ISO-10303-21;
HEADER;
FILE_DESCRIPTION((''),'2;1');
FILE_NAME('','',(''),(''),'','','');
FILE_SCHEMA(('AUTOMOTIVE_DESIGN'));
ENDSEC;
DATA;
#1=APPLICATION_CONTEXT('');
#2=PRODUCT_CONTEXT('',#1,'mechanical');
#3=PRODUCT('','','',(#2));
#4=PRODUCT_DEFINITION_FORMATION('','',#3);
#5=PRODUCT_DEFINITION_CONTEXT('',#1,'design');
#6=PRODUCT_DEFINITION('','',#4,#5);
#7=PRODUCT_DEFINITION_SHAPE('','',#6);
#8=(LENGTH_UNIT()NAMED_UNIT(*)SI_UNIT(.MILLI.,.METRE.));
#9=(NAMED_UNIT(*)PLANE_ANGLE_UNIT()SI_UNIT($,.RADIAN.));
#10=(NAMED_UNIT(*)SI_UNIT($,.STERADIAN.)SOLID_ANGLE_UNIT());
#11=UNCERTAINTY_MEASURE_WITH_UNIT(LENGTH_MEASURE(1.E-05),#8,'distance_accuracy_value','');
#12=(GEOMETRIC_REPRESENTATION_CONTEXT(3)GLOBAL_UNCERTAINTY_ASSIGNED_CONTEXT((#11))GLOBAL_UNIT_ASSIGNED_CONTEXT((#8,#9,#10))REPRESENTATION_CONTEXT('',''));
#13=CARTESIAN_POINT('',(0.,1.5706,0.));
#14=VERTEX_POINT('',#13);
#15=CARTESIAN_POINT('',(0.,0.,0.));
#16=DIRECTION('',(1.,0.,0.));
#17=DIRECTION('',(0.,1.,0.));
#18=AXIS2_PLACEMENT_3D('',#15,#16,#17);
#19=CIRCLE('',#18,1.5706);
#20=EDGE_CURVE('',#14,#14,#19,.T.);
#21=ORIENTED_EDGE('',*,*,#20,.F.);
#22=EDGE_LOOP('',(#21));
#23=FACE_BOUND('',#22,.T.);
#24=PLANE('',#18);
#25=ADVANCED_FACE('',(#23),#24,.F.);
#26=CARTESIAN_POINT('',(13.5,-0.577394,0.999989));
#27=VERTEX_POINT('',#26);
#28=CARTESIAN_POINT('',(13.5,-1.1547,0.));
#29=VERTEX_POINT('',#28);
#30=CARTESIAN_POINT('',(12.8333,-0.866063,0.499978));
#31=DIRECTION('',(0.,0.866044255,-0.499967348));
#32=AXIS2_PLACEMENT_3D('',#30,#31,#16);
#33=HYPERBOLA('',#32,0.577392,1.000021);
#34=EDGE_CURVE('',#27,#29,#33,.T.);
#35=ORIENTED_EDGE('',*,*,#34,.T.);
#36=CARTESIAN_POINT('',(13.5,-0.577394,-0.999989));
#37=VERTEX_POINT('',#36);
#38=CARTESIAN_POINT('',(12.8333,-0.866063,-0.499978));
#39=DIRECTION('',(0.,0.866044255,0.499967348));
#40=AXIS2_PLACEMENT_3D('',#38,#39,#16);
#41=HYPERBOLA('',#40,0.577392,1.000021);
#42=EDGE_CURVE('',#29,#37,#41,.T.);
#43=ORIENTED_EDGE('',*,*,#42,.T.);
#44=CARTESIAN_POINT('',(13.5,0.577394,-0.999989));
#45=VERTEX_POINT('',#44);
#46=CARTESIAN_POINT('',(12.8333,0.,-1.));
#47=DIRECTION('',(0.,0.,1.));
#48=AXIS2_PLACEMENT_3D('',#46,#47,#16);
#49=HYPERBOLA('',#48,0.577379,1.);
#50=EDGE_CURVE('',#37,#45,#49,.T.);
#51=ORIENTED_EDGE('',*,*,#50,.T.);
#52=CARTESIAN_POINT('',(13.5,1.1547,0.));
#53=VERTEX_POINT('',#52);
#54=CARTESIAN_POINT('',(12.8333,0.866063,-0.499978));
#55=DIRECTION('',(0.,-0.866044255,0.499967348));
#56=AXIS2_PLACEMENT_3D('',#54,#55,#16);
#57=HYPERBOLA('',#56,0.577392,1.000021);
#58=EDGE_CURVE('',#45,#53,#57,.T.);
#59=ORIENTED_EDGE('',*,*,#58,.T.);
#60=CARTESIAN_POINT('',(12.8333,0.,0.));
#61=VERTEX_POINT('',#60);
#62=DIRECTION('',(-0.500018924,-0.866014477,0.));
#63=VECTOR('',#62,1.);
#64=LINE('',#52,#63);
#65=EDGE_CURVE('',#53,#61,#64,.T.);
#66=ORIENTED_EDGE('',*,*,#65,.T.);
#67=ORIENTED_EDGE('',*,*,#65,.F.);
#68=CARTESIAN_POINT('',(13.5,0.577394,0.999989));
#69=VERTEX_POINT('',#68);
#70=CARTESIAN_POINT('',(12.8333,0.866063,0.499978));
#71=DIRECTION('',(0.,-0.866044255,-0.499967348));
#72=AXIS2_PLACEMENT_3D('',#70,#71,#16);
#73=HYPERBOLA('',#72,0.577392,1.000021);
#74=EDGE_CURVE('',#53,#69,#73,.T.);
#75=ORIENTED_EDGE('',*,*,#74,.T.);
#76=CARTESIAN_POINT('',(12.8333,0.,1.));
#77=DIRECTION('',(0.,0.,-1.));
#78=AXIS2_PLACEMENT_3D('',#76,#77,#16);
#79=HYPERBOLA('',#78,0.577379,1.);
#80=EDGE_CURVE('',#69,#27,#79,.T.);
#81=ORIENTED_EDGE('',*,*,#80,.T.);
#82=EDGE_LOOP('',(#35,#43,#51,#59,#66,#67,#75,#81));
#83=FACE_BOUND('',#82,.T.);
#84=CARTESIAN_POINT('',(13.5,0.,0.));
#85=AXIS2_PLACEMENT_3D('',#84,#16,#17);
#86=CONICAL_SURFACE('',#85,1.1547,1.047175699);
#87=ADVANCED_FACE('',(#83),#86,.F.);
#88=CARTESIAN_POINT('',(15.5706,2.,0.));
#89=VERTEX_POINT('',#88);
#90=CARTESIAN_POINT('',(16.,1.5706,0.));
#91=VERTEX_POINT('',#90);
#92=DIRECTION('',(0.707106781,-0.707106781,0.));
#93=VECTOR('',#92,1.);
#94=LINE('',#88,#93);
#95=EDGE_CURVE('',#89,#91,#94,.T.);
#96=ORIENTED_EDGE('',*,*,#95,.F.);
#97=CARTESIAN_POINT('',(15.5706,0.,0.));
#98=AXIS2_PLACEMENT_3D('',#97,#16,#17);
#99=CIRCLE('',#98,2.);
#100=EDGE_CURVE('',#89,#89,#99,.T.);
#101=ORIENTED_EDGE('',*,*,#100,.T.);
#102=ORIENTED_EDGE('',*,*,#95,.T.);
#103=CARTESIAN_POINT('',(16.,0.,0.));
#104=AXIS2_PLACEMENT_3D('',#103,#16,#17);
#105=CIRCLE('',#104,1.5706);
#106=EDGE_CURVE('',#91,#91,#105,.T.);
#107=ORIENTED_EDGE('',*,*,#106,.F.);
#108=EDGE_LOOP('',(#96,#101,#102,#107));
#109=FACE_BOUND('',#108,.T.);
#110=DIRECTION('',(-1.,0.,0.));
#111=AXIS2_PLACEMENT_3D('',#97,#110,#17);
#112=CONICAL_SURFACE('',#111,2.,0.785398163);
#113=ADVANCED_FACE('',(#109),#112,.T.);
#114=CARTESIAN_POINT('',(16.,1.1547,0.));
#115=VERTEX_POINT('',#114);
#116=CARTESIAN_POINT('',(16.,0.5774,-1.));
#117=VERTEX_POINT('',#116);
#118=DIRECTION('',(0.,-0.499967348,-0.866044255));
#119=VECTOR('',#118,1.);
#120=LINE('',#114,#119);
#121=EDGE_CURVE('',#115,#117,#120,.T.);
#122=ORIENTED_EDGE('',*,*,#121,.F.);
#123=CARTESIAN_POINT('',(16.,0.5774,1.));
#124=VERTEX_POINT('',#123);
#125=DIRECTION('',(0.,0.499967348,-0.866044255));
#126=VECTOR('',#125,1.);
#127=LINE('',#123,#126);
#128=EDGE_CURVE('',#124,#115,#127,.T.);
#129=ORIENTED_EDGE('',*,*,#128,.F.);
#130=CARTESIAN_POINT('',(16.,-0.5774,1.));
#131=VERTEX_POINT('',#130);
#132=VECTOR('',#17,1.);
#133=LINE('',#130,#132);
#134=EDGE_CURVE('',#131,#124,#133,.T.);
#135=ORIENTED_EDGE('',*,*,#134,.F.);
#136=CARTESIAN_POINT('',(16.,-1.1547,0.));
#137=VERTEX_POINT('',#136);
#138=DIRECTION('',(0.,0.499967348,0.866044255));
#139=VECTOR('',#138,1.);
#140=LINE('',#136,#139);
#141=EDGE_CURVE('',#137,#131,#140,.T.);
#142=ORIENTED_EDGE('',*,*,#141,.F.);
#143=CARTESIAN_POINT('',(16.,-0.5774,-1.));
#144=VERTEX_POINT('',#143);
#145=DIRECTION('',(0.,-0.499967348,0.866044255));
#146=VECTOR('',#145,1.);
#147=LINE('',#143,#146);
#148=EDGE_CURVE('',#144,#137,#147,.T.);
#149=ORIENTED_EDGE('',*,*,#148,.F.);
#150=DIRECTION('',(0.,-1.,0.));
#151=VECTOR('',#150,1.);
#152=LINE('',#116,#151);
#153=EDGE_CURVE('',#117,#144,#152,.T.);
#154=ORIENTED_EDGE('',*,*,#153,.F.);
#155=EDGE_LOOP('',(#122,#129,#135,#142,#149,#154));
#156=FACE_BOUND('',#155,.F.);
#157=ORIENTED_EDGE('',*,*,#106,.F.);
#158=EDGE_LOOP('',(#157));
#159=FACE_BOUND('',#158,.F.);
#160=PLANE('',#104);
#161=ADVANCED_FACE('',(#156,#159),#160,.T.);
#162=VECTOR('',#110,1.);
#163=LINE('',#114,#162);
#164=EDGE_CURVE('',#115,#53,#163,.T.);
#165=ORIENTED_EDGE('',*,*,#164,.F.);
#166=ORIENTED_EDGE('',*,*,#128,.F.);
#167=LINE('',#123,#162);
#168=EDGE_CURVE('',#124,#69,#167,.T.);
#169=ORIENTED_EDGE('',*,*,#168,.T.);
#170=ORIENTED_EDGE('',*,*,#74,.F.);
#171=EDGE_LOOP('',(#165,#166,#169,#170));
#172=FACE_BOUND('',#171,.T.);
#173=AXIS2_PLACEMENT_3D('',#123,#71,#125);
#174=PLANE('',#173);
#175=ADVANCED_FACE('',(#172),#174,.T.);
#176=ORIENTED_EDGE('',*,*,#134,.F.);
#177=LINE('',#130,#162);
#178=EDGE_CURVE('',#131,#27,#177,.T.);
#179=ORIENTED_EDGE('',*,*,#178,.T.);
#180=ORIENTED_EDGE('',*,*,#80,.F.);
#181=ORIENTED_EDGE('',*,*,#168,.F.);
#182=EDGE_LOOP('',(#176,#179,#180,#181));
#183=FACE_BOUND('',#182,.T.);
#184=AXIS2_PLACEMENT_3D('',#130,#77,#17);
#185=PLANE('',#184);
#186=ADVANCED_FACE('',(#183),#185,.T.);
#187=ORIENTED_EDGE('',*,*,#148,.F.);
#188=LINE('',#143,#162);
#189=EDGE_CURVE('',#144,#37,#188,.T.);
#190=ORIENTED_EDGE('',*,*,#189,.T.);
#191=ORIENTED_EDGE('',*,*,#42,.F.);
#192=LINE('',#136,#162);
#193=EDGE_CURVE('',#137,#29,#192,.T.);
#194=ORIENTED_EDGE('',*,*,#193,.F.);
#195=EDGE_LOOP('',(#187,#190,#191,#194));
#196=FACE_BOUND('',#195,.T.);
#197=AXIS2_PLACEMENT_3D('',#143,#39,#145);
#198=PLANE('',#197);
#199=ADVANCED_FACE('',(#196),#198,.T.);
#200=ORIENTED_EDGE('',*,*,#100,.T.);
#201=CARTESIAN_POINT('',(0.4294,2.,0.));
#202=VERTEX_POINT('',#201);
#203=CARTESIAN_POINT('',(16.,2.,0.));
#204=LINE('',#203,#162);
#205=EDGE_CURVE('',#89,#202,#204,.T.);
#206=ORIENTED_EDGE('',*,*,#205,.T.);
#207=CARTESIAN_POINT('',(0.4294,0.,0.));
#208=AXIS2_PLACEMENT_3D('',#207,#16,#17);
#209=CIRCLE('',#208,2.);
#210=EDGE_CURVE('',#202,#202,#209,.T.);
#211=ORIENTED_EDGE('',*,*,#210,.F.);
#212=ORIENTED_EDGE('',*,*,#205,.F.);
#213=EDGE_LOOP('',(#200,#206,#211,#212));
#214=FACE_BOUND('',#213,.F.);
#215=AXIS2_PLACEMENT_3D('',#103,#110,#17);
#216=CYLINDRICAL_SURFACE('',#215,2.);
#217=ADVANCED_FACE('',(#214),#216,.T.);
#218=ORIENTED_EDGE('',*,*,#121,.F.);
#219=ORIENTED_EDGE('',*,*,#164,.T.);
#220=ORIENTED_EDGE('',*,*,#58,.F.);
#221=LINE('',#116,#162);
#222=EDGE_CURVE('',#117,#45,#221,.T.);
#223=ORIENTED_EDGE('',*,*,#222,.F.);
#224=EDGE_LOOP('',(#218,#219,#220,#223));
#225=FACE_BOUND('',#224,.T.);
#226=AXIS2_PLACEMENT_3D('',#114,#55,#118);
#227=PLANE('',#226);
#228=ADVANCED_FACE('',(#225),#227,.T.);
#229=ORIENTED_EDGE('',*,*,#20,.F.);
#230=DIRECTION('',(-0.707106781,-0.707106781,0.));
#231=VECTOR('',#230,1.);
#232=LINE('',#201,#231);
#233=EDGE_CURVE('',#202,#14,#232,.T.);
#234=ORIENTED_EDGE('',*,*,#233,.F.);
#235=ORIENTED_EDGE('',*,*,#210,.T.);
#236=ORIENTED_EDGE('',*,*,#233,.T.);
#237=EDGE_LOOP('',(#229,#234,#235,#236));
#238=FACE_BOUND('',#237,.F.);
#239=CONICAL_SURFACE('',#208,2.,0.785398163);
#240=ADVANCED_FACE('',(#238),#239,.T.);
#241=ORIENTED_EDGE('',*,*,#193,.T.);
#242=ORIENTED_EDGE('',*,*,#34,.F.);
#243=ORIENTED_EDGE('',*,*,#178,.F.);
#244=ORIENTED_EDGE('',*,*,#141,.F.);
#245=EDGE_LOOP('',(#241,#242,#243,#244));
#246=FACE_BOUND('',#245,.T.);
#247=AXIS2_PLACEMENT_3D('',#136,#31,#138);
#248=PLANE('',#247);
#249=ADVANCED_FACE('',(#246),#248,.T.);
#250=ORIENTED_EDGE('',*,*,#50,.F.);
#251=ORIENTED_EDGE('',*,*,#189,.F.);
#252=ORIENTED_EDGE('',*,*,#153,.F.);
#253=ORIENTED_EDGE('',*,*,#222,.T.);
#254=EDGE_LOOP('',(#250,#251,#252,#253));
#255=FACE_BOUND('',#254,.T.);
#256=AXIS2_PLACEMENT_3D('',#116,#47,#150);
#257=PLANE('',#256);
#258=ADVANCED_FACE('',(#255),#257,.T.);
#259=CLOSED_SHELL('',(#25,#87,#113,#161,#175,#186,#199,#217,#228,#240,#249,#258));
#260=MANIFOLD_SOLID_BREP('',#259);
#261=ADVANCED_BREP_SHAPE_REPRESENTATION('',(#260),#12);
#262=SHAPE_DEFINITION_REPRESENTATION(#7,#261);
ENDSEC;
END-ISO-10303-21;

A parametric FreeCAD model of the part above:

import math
import FreeCAD as App
import Part
import Sketcher
from FreeCAD import Vector
Q = App.Units.Quantity


def edges_at(feature, points):
    """Names of the edges that pass closest to the given points."""
    edges = feature.Shape.Edges
    near = lambda p: min(range(len(edges)), key=lambda i: edges[i].distToShape(Part.Vertex(*p))[0])
    return sorted({f"Edge{near(p) + 1}" for p in points})

doc = App.newDocument("Part")
body = doc.addObject("PartDesign::Body", "Body")

# Sketch on XY plane
sketch1 = body.newObject("Sketcher::SketchObject", "Sketch")
sketch1.AttachmentSupport = (doc.getObject("XY_Plane"), [""])
sketch1.MapMode = "FlatFace"
sketch1.addGeometry(Part.LineSegment(Vector(0, 2, 0), Vector(0, 0, 0)), False)
sketch1.addGeometry(Part.LineSegment(Vector(0, 0, 0), Vector(12.8, 0, 0)), False)
sketch1.addGeometry(Part.LineSegment(Vector(12.8, 0, 0), Vector(13.5, 1.2, 0)), False)
sketch1.addGeometry(Part.LineSegment(Vector(13.5, 1.2, 0), Vector(16, 1.2, 0)), False)
sketch1.addGeometry(Part.LineSegment(Vector(16, 1.2, 0), Vector(16, 2, 0)), False)
sketch1.addGeometry(Part.LineSegment(Vector(16, 2, 0), Vector(0, 2, 0)), False)
sketch1.addConstraint(Sketcher.Constraint("Coincident", 0, 2, 1, 1))
sketch1.addConstraint(Sketcher.Constraint("Coincident", 1, 2, 2, 1))
sketch1.addConstraint(Sketcher.Constraint("Coincident", 2, 2, 3, 1))
sketch1.addConstraint(Sketcher.Constraint("Coincident", 3, 2, 4, 1))
sketch1.addConstraint(Sketcher.Constraint("Coincident", 4, 2, 5, 1))
sketch1.addConstraint(Sketcher.Constraint("Coincident", 5, 2, 0, 1))
sketch1.addConstraint(Sketcher.Constraint("Vertical", 0))
sketch1.addConstraint(Sketcher.Constraint("Horizontal", 1))
sketch1.addConstraint(Sketcher.Constraint("Horizontal", 3))
sketch1.addConstraint(Sketcher.Constraint("Vertical", 4))
sketch1.addConstraint(Sketcher.Constraint("Horizontal", 5))
sketch1.addConstraint(Sketcher.Constraint("Coincident", 0, 2, -1, 1))
sketch1.addConstraint(Sketcher.Constraint("DistanceX", 5, 2, 5, 1, Q("16 mm")))
sketch1.addConstraint(Sketcher.Constraint("DistanceX", 3, 1, 3, 2, Q("2.5 mm")))
sketch1.addConstraint(Sketcher.Constraint("DistanceY", 0, 2, 0, 1, Q("2 mm")))
sketch1.addConstraint(Sketcher.Constraint("DistanceX", 1, 1, 1, 2, Q("12.8333 mm")))
sketch1.addConstraint(Sketcher.Constraint("DistanceY", 4, 1, 4, 2, Q("0.8453 mm")))
revolution = body.newObject("PartDesign::Revolution", "Revolution")
revolution.Profile = sketch1
revolution.ReferenceAxis = (sketch1, ["H_Axis"])
revolution.Angle = 360

# Sketch on YZ plane
sketch2 = body.newObject("Sketcher::SketchObject", "Sketch001")
sketch2.AttachmentSupport = (doc.getObject("YZ_Plane"), [""])
sketch2.MapMode = "FlatFace"
sketch2.AttachmentOffset = App.Placement(Vector(0, 0, 16), App.Rotation())
sketch2.addGeometry(Part.LineSegment(Vector(0.6, 1, 0), Vector(1.2, 0, 0)), False)
sketch2.addGeometry(Part.ArcOfCircle(Part.Circle(Vector(0, 0, 0), Vector(0, 0, 1), 1.2), math.radians(0), math.radians(60)), False)
sketch2.addGeometry(Part.ArcOfCircle(Part.Circle(Vector(0, 0, 0), Vector(0, 0, 1), 1.2), math.radians(-60), math.radians(0)), False)
sketch2.addGeometry(Part.LineSegment(Vector(1.2, 0, 0), Vector(0.6, -1, 0)), False)
sketch2.addGeometry(Part.LineSegment(Vector(-0.6, 1, 0), Vector(0.6, 1, 0)), False)
sketch2.addGeometry(Part.ArcOfCircle(Part.Circle(Vector(0, 0, 0), Vector(0, 0, 1), 1.2), math.radians(60), math.radians(120)), False)
sketch2.addGeometry(Part.ArcOfCircle(Part.Circle(Vector(0, 0, 0), Vector(0, 0, 1), 1.2), math.radians(-120), math.radians(-60)), False)
sketch2.addGeometry(Part.LineSegment(Vector(-0.6, -1, 0), Vector(0.6, -1, 0)), False)
sketch2.addGeometry(Part.LineSegment(Vector(-1.2, 0, 0), Vector(-0.6, 1, 0)), False)
sketch2.addGeometry(Part.ArcOfCircle(Part.Circle(Vector(0, 0, 0), Vector(0, 0, 1), 1.2), math.radians(120), math.radians(180)), False)
sketch2.addGeometry(Part.ArcOfCircle(Part.Circle(Vector(0, 0, 0), Vector(0, 0, 1), 1.2), math.radians(180), math.radians(240)), False)
sketch2.addGeometry(Part.LineSegment(Vector(-1.2, 0, 0), Vector(-0.6, -1, 0)), False)
sketch2.addConstraint(Sketcher.Constraint("Coincident", 0, 1, 1, 2))
sketch2.addConstraint(Sketcher.Constraint("Coincident", 1, 1, 0, 2))
sketch2.addConstraint(Sketcher.Constraint("Coincident", 2, 1, 3, 2))
sketch2.addConstraint(Sketcher.Constraint("Coincident", 3, 1, 2, 2))
sketch2.addConstraint(Sketcher.Constraint("Coincident", 4, 1, 5, 2))
sketch2.addConstraint(Sketcher.Constraint("Coincident", 5, 1, 4, 2))
sketch2.addConstraint(Sketcher.Constraint("Coincident", 6, 1, 7, 1))
sketch2.addConstraint(Sketcher.Constraint("Coincident", 7, 2, 6, 2))
sketch2.addConstraint(Sketcher.Constraint("Coincident", 8, 1, 9, 2))
sketch2.addConstraint(Sketcher.Constraint("Coincident", 9, 1, 8, 2))
sketch2.addConstraint(Sketcher.Constraint("Coincident", 10, 1, 11, 1))
sketch2.addConstraint(Sketcher.Constraint("Coincident", 11, 2, 10, 2))
sketch2.addConstraint(Sketcher.Constraint("Horizontal", 4))
sketch2.addConstraint(Sketcher.Constraint("Horizontal", 7))
sketch2.addConstraint(Sketcher.Constraint("Coincident", 1, 3, -1, 1))
sketch2.addConstraint(Sketcher.Constraint("Coincident", 2, 3, -1, 1))
sketch2.addConstraint(Sketcher.Constraint("Coincident", 5, 3, -1, 1))
sketch2.addConstraint(Sketcher.Constraint("Coincident", 6, 3, -1, 1))
sketch2.addConstraint(Sketcher.Constraint("Coincident", 9, 3, -1, 1))
sketch2.addConstraint(Sketcher.Constraint("Coincident", 10, 3, -1, 1))
sketch2.addConstraint(Sketcher.Constraint("Coincident", 3, 1, 1, 1))
sketch2.addConstraint(Sketcher.Constraint("Coincident", 5, 1, 0, 1))
sketch2.addConstraint(Sketcher.Constraint("Coincident", 7, 2, 2, 1))
sketch2.addConstraint(Sketcher.Constraint("Coincident", 9, 1, 4, 1))
sketch2.addConstraint(Sketcher.Constraint("Coincident", 10, 1, 8, 1))
sketch2.addConstraint(Sketcher.Constraint("PointOnObject", 1, 1, -1))
sketch2.addConstraint(Sketcher.Constraint("PointOnObject", 8, 1, -1))
sketch2.addConstraint(Sketcher.Constraint("Parallel", 3, 8))
sketch2.addConstraint(Sketcher.Constraint("Parallel", 0, 11))
sketch2.addConstraint(Sketcher.Constraint("DistanceY", -1, 1, 0, 1, Q("1 mm")))
sketch2.addConstraint(Sketcher.Constraint("Radius", 1, Q("1.1547 mm")))
pad1 = body.newObject("PartDesign::Pad", "Pad")
pad1.Profile = sketch2
pad1.Type = "UpToFirst"
pad1.Reversed = True
doc.recompute()

chamfer = body.newObject("PartDesign::Chamfer", "Chamfer")
chamfer.Base = (pad1, edges_at(pad1, [(16, -2, 0)]))
chamfer.Size = 0.4294
doc.recompute()

chamfer2 = body.newObject("PartDesign::Chamfer", "Chamfer001")
chamfer2.Base = (chamfer, edges_at(chamfer, [(0, -2, 0)]))
chamfer2.Size = 0.4294

doc.recompute()
